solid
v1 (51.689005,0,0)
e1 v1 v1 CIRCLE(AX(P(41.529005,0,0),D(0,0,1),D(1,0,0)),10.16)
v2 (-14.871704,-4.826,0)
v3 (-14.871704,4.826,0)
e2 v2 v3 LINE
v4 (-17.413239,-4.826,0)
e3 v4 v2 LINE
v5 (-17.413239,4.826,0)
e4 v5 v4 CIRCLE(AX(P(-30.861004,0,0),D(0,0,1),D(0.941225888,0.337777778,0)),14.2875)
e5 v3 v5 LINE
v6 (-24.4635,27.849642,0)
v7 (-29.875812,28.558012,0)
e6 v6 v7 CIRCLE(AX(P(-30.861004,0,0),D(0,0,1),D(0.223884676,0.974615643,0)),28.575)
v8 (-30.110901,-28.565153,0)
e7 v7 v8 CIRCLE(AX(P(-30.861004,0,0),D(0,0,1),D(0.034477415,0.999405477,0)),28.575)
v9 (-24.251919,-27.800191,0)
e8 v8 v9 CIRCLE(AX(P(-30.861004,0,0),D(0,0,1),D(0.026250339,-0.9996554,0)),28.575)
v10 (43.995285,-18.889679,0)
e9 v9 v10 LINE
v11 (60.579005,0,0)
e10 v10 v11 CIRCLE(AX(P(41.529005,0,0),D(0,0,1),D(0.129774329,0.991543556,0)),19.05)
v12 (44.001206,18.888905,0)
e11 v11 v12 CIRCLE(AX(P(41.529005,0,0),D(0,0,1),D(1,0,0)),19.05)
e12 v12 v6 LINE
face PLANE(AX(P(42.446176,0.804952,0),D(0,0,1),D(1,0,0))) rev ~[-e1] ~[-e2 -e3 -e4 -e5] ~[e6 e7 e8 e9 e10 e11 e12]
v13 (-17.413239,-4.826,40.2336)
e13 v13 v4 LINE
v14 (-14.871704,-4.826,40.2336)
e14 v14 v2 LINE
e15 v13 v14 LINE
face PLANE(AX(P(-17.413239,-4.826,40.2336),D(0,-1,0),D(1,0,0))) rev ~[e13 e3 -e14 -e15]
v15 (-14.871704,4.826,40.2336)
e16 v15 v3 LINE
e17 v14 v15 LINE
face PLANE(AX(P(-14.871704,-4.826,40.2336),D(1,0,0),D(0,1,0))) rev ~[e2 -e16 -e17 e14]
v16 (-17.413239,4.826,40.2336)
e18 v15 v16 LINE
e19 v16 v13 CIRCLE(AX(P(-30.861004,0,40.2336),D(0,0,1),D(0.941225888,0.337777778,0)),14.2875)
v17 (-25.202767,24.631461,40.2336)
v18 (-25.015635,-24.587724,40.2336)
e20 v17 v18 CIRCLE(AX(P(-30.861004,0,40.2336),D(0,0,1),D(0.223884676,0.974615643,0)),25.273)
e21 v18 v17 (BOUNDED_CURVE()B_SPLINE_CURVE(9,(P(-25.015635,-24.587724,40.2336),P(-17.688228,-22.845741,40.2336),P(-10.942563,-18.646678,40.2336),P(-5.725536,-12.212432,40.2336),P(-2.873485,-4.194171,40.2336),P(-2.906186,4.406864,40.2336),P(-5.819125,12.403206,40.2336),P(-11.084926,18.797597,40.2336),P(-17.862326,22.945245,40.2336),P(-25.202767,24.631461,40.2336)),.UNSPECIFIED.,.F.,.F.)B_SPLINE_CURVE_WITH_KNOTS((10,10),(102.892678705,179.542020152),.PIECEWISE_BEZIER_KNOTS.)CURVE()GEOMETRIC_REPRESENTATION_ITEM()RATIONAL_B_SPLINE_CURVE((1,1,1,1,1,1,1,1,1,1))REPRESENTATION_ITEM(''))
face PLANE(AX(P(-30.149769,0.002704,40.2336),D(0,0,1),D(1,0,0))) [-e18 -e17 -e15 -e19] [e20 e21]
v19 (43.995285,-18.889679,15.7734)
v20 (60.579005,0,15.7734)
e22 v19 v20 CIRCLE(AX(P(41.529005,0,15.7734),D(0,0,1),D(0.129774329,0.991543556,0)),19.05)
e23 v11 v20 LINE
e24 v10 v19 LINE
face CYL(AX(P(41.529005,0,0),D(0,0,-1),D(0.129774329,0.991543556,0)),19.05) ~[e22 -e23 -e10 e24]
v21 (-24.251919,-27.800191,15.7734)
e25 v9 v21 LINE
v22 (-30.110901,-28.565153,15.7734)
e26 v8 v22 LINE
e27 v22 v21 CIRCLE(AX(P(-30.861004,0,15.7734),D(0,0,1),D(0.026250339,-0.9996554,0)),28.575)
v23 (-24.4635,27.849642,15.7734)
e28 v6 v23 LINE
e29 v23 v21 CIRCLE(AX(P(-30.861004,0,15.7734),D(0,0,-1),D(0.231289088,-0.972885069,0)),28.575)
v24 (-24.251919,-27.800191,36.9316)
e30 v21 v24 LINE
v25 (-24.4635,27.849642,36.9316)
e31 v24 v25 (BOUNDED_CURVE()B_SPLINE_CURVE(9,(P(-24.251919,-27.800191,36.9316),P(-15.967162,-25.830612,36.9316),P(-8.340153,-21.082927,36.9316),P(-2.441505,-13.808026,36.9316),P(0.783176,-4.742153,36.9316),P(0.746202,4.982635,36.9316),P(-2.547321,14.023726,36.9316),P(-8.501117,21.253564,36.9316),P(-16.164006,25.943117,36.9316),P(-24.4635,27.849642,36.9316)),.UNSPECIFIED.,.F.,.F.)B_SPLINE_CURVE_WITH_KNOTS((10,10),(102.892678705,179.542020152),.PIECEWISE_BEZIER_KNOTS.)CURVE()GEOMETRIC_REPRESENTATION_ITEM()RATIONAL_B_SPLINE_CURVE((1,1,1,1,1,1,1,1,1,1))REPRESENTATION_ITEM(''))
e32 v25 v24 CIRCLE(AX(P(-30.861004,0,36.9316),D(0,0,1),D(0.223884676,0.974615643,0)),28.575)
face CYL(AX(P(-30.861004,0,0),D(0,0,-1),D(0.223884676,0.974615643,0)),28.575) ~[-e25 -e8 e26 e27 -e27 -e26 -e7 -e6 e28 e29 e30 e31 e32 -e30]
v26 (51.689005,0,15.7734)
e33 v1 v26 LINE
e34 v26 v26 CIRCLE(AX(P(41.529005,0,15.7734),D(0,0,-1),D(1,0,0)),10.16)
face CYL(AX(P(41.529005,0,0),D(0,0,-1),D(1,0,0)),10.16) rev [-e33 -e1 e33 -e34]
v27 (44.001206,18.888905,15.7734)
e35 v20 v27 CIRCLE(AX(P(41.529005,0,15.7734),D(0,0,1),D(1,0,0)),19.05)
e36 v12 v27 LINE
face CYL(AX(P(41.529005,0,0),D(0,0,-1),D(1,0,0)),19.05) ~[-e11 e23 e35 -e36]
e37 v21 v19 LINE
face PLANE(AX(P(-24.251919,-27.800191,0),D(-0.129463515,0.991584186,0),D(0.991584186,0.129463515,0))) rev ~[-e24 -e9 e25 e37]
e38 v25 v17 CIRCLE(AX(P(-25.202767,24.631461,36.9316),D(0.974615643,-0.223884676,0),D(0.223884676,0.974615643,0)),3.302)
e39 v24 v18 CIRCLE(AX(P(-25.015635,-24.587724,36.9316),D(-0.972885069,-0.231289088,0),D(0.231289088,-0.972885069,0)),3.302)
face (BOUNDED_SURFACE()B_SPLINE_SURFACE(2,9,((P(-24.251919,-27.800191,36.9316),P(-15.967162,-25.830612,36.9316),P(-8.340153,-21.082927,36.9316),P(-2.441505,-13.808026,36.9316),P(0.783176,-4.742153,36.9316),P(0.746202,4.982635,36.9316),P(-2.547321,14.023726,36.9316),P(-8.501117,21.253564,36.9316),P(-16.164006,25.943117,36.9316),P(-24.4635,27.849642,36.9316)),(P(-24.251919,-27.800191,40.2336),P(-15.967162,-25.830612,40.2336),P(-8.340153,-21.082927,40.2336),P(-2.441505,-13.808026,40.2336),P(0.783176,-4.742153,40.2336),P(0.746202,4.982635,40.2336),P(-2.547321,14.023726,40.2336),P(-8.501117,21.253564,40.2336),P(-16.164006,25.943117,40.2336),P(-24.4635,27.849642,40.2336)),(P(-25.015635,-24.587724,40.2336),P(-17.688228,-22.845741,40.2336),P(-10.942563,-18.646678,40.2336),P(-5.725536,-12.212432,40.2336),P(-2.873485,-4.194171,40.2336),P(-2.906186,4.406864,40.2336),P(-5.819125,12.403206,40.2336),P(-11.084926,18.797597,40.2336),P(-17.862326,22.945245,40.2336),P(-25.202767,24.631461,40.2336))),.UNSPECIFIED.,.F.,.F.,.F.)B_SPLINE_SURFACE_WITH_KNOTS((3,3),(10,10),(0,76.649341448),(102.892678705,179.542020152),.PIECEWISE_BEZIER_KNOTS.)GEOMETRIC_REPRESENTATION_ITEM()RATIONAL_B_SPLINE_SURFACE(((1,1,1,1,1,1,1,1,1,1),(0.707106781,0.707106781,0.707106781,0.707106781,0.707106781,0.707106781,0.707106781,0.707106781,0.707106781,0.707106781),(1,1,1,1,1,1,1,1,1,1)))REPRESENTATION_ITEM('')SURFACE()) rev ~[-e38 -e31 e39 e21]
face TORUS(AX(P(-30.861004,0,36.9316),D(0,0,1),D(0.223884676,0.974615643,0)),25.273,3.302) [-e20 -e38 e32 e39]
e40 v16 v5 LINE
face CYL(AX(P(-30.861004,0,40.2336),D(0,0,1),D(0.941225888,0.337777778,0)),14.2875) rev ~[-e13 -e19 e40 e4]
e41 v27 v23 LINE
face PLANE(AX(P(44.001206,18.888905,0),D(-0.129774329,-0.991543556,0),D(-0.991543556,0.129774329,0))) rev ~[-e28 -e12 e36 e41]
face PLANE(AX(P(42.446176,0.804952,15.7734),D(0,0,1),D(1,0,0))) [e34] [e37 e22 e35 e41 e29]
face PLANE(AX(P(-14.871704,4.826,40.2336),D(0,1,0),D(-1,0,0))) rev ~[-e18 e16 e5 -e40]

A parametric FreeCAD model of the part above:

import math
import FreeCAD as App
import Part
import Sketcher
from FreeCAD import Vector
Q = App.Units.Quantity


def edges_at(feature, points):
    """Names of the edges that pass closest to the given points."""
    edges = feature.Shape.Edges
    near = lambda p: min(range(len(edges)), key=lambda i: edges[i].distToShape(Part.Vertex(*p))[0])
    return sorted({f"Edge{near(p) + 1}" for p in points})

doc = App.newDocument("Part")
body = doc.addObject("PartDesign::Body", "Body")

sketch1 = body.newObject("Sketcher::SketchObject", "Sketch")
sketch1.AttachmentSupport = (doc.getObject("XY_Plane"), [""])
sketch1.MapMode = "FlatFace"
sketch1.addGeometry(Part.ArcOfCircle(Part.Circle(Vector(41.529005, 0, 0), Vector(0, 0, 1), 19.05), math.radians(0), math.radians(82.543448)), False)
sketch1.addGeometry(Part.LineSegment(Vector(44.001206, 18.888905, 0), Vector(-24.4635, 27.849642, 0)), False)
sketch1.addGeometry(Part.ArcOfCircle(Part.Circle(Vector(-30.861004, 0, 0), Vector(0, 0, 1), 28.575), math.radians(77.062698), math.radians(88.024198)), False)
sketch1.addGeometry(Part.ArcOfCircle(Part.Circle(Vector(-30.861004, 0, 0), Vector(0, 0, 1), 28.575), math.radians(88.024198), math.radians(271.504206)), False)
sketch1.addGeometry(Part.ArcOfCircle(Part.Circle(Vector(-30.861004, 0, 0), Vector(0, 0, 1), 28.575), math.radians(-88.495794), math.radians(-76.627022)), False)
sketch1.addGeometry(Part.LineSegment(Vector(-24.251919, -27.800191, 0), Vector(43.995285, -18.889679, 0)), False)
sketch1.addGeometry(Part.ArcOfCircle(Part.Circle(Vector(41.529005, 0, 0), Vector(0, 0, 1), 19.05), math.radians(-82.561408), math.radians(0)), False)
sketch1.addConstraint(Sketcher.Constraint("Tangent", 0, 2, 1, 1))
sketch1.addConstraint(Sketcher.Constraint("Coincident", 1, 2, 2, 1))
sketch1.addConstraint(Sketcher.Constraint("Tangent", 2, 2, 3, 1))
sketch1.addConstraint(Sketcher.Constraint("Tangent", 3, 2, 4, 1))
sketch1.addConstraint(Sketcher.Constraint("Coincident", 4, 2, 5, 1))
sketch1.addConstraint(Sketcher.Constraint("Tangent", 5, 2, 6, 1))
sketch1.addConstraint(Sketcher.Constraint("Tangent", 6, 2, 0, 1))
sketch1.addConstraint(Sketcher.Constraint("Coincident", 4, 3, 2, 3))
sketch1.addConstraint(Sketcher.Constraint("Equal", 0, 6))
sketch1.addConstraint(Sketcher.Constraint("PointOnObject", 0, 3, -1))
sketch1.addConstraint(Sketcher.Constraint("PointOnObject", 2, 3, -1))
sketch1.addConstraint(Sketcher.Constraint("PointOnObject", 6, 2, -1))
sketch1.addConstraint(Sketcher.Constraint("Radius", 0, Q("0.75 in")))
sketch1.addConstraint(Sketcher.Constraint("Radius", 2, Q("1.125 in")))
sketch1.addConstraint(Sketcher.Constraint("DistanceX", 2, 3, -1, 1, Q("1.2150002 in")))
sketch1.addConstraint(Sketcher.Constraint("DistanceX", 4, 2, -1, 1, Q("0.9547999 in")))
sketch1.addConstraint(Sketcher.Constraint("DistanceX", 4, 2, 6, 2, Q("3.3398002 in")))
sketch1.addConstraint(Sketcher.Constraint("DistanceX", 1, 2, -1, 1, 24.4635))
sketch1.addConstraint(Sketcher.Constraint("DistanceX", 3, 2, -1, 1, 30.110901))
sketch1.addConstraint(Sketcher.Constraint("DistanceY", -1, 1, 2, 2, 28.558012))
pad1 = body.newObject("PartDesign::Pad", "Pad")
pad1.Profile = sketch1
pad1.Length = Q("0.621 in")

sketch2 = body.newObject("Sketcher::SketchObject", "Sketch001")
sketch2.AttachmentSupport = (doc.getObject("XY_Plane"), [""])
sketch2.MapMode = "FlatFace"
sketch2.addGeometry(Part.ArcOfCircle(Part.Circle(Vector(-30.861004, 0, 0), Vector(0, 0, 1), 28.575), math.radians(77.062698), math.radians(283.372978)), False)
sketch2.addGeometry(Part.ArcOfCircle(Part.Circle(Vector(-30.861004, 0, 0), Vector(0, 0, 1), 28.575), math.radians(-76.627022), math.radians(77.062698)), False)
sketch2.addConstraint(Sketcher.Constraint("Tangent", 0, 1, 1, 2))
sketch2.addConstraint(Sketcher.Constraint("Coincident", 1, 1, 0, 2))
sketch2.addConstraint(Sketcher.Constraint("PointOnObject", 0, 3, -1))
sketch2.addConstraint(Sketcher.Constraint("Radius", 0, Q("1.125 in")))
sketch2.addConstraint(Sketcher.Constraint("DistanceX", 0, 3, -1, 1, Q("1.2150002 in")))
sketch2.addConstraint(Sketcher.Constraint("DistanceX", 1, 1, -1, 1, Q("0.9547999 in")))
sketch2.addConstraint(Sketcher.Constraint("DistanceX", 0, 1, -1, 1, 24.4635))
pad2 = body.newObject("PartDesign::Pad", "Pad001")
pad2.Profile = sketch2
pad2.Length = Q("1.584 in")
doc.recompute()

fillet = body.newObject("PartDesign::Fillet", "Fillet")
fillet.Base = (pad2, edges_at(pad2, [(-59.436, -0.109, 40.234)]))
fillet.Radius = Q("0.13 in")

sketch3 = body.newObject("Sketcher::SketchObject", "Sketch002")
sketch3.AttachmentSupport = (doc.getObject("XY_Plane"), [""])
sketch3.MapMode = "FlatFace"
sketch3.addGeometry(Part.Circle(Vector(41.529005, 0, 0), Vector(0, 0, 1), 10.16), False)
sketch3.addConstraint(Sketcher.Constraint("PointOnObject", 0, 3, -1))
sketch3.addConstraint(Sketcher.Constraint("Diameter", 0, Q("0.8 in")))
sketch3.addConstraint(Sketcher.Constraint("DistanceX", -1, 1, 0, 3, 41.529005))
pocket1 = body.newObject("PartDesign::Pocket", "Pocket")
pocket1.Profile = sketch3
pocket1.Type = "ThroughAll"
pocket1.Reversed = True

sketch4 = body.newObject("Sketcher::SketchObject", "Sketch003")
sketch4.AttachmentSupport = (doc.getObject("XY_Plane"), [""])
sketch4.MapMode = "FlatFace"
sketch4.AttachmentOffset = App.Placement(Vector(0, 0, 1.584 * 25.4), App.Rotation())
sketch4.addGeometry(Part.ArcOfCircle(Part.Circle(Vector(-30.861004, 0, 0), Vector(0, 0, 1), 14.2875), math.radians(19.741542), math.radians(340.258458)), False)
sketch4.addGeometry(Part.LineSegment(Vector(-17.413239, -4.826, 0), Vector(-14.871704, -4.826, 0)), False)
sketch4.addGeometry(Part.LineSegment(Vector(-14.871704, -4.826, 0), Vector(-14.871704, 4.826, 0)), False)
sketch4.addGeometry(Part.LineSegment(Vector(-14.871704, 4.826, 0), Vector(-17.413239, 4.826, 0)), False)
sketch4.addConstraint(Sketcher.Constraint("Coincident", 0, 2, 1, 1))
sketch4.addConstraint(Sketcher.Constraint("Coincident", 1, 2, 2, 1))
sketch4.addConstraint(Sketcher.Constraint("Coincident", 2, 2, 3, 1))
sketch4.addConstraint(Sketcher.Constraint("Coincident", 3, 2, 0, 1))
sketch4.addConstraint(Sketcher.Constraint("Horizontal", 1))
sketch4.addConstraint(Sketcher.Constraint("Vertical", 2))
sketch4.addConstraint(Sketcher.Constraint("Horizontal", 3))
sketch4.addConstraint(Sketcher.Constraint("Symmetric", 0, 2, 3, 2, -1))
sketch4.addConstraint(Sketcher.Constraint("Radius", 0, Q("0.5625 in")))
sketch4.addConstraint(Sketcher.Constraint("DistanceY", 2, 1, 2, 2, Q("0.38 in")))
sketch4.addConstraint(Sketcher.Constraint("DistanceX", 0, 3, -1, 1, Q("1.2150002 in")))
sketch4.addConstraint(Sketcher.Constraint("DistanceX", 1, 2, -1, 1, Q("0.5855002 in")))
pocket2 = body.newObject("PartDesign::Pocket", "Pocket001")
pocket2.Profile = sketch4
pocket2.Type = "ThroughAll"

doc.recompute()
